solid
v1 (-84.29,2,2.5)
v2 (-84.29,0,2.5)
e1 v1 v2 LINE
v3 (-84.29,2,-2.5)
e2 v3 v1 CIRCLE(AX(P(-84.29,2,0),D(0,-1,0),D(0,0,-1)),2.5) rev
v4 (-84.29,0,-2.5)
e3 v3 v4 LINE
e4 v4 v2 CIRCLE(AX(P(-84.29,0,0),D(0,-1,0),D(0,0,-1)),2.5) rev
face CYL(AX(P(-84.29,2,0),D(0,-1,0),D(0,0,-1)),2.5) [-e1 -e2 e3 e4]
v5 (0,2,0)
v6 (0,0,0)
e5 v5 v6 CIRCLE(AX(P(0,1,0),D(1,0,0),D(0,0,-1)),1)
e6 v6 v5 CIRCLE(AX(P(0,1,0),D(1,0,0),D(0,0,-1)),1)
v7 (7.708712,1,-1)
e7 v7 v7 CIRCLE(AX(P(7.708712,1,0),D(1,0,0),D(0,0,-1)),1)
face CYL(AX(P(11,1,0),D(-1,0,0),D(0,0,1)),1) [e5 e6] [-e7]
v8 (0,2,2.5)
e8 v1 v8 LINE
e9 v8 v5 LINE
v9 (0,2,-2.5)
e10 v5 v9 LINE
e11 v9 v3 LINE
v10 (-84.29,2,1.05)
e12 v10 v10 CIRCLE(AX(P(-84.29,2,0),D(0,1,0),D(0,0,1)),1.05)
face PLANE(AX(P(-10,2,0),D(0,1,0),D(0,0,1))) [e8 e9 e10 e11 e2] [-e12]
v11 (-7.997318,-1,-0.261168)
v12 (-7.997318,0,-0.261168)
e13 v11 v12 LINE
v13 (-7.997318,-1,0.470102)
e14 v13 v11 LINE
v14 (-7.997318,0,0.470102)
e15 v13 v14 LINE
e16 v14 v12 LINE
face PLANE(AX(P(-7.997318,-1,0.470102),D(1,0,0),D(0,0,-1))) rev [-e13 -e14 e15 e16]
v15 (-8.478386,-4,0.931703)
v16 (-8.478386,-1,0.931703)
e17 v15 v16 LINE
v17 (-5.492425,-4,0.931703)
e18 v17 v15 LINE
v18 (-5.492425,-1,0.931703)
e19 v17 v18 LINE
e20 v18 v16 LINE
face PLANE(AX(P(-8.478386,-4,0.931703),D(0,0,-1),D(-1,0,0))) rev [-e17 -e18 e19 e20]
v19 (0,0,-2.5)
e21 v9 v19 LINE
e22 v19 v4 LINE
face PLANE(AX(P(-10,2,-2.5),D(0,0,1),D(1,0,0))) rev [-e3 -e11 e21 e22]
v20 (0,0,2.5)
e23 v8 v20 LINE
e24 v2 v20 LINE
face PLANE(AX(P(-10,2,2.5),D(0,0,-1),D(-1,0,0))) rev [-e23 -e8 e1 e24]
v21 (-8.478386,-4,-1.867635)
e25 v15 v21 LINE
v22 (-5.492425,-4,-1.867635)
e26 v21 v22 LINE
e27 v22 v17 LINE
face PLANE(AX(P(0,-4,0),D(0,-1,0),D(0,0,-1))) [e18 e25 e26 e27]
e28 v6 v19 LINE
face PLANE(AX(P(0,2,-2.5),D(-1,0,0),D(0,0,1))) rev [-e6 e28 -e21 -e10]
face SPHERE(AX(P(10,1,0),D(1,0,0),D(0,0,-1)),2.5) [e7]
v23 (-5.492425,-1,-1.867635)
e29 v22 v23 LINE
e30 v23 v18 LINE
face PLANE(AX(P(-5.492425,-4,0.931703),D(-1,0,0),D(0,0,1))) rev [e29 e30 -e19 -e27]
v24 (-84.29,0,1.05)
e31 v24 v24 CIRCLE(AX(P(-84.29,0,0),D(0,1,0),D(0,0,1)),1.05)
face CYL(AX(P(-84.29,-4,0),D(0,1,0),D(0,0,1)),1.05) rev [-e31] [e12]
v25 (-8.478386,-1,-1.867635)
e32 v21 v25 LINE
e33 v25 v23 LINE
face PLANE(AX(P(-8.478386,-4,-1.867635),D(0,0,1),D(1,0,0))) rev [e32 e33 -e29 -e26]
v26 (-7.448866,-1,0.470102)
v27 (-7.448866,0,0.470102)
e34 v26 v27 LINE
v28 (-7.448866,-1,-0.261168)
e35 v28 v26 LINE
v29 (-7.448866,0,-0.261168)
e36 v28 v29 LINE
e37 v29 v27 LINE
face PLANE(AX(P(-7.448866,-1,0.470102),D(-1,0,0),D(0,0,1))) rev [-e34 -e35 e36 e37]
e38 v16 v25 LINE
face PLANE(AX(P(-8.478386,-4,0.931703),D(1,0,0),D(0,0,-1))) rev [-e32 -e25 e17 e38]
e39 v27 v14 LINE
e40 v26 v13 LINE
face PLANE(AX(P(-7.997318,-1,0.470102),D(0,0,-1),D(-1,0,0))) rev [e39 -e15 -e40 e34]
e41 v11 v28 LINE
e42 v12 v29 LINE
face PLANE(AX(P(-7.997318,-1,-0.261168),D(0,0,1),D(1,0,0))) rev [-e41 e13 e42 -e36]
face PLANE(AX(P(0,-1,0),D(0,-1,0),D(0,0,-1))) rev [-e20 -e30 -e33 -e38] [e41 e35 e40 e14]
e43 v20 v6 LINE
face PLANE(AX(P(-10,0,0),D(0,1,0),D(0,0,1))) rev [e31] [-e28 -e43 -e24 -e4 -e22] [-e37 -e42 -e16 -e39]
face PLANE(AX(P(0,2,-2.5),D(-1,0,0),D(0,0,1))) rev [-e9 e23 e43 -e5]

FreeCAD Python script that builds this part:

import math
import FreeCAD as App
import Part
import Sketcher

V = App.Vector

doc = App.newDocument("Part")
params = doc.addObject("Spreadsheet::Sheet", "Params")
for row, (alias, value) in enumerate([
    ("sketch1_diameter", "2 mm"),
    ("sketch1_radius", "2.5 mm"),
    ("sketch1_width", "10 mm"),
    ("pad1_length", "2 mm"),
    ("sketch2_diameter", "2 mm"),
    ("pad2_length", "11 mm"),
    ("pad3_length", "1 mm"),
    ("pad4_length", "3 mm"),
    ("sketch5_width", "2 mm"),
    ("sketch5_height", "5 mm"),
    ("pad5_length", "86.79 mm"),
    ("sketch6_radius", "2.5 mm"),
    ("sketch7_diameter", "2.1 mm"),
    ("sketch8_radius", "2.5 mm"),
    ("sketch9_radius", "2.5 mm"),
    ("revolution_angle", "360 deg"),
], start=1):
    params.set(f"A{row}", alias)
    params.set(f"B{row}", "=" + value)
    params.setAlias(f"B{row}", alias)

body = doc.addObject("PartDesign::Body", "Body")

sketch1 = body.newObject("Sketcher::SketchObject", "Sketch")
sketch1.AttachmentSupport = (doc.getObject("XZ_Plane"), [""])
sketch1.MapMode = "FlatFace"
sketch1.addGeometry([
    Part.LineSegment(V(0, -2.5, 0), V(-10, -2.5, 0)),
    Part.ArcOfCircle(Part.Circle(V(-10, 0, 0), V(0, 0, 1), 2.5), math.radians(90), math.radians(270)),
    Part.LineSegment(V(-10, 2.5, 0), V(0, 2.5, 0)),
    Part.LineSegment(V(0, 2.5, 0), V(0, -2.5, 0)),
    Part.Circle(V(-10, 0, 0), V(0, 0, 1), 1),
], False)
sketch1.addConstraint([
    Sketcher.Constraint("Tangent", 0, 2, 1, 2),
    Sketcher.Constraint("Tangent", 1, 1, 2, 1),
    Sketcher.Constraint("Coincident", 2, 2, 3, 1),
    Sketcher.Constraint("Coincident", 3, 2, 0, 1),
    Sketcher.Constraint("Horizontal", 0),
    Sketcher.Constraint("Horizontal", 2),
    Sketcher.Constraint("Vertical", 3),
    Sketcher.Constraint("Coincident", 4, 3, 1, 3),
    Sketcher.Constraint("Symmetric", 2, 2, 3, 2, -1, 1),
    Sketcher.Constraint("Diameter", 4, 2.0),
    Sketcher.Constraint("Radius", 1, 2.5),
    Sketcher.Constraint("DistanceX", 0, 2, 0, 1, 10.0),
])
sketch1.setExpression("Constraints[9]", "Params.sketch1_diameter")
sketch1.setExpression("Constraints[10]", "Params.sketch1_radius")
sketch1.setExpression("Constraints[11]", "Params.sketch1_width")
pad1 = body.newObject("PartDesign::Pad", "Pad")
pad1.Profile = sketch1
pad1.setExpression("Length", "Params.pad1_length")
pad1.Reversed = True

sketch2 = body.newObject("Sketcher::SketchObject", "Sketch001")
sketch2.AttachmentSupport = (doc.getObject("YZ_Plane"), [""])
sketch2.MapMode = "FlatFace"
sketch2.addGeometry(Part.Circle(V(1, 0, 0), V(0, 0, 1), 1), False)
sketch2.addConstraint([
    Sketcher.Constraint("PointOnObject", 0, 3, -1),
    Sketcher.Constraint("Diameter", 0, 2.0),
    Sketcher.Constraint("DistanceX", -1, 1, 0, 3, 1.0),
])
sketch2.setExpression("Constraints[1]", "Params.sketch2_diameter")
pad2 = body.newObject("PartDesign::Pad", "Pad001")
pad2.Profile = sketch2
pad2.setExpression("Length", "Params.pad2_length")

sketch3 = body.newObject("Sketcher::SketchObject", "Sketch002")
sketch3.AttachmentSupport = (doc.getObject("XZ_Plane"), [""])
sketch3.MapMode = "FlatFace"
sketch3.addGeometry([
    Part.LineSegment(V(-8, 0.5, 0), V(-8, -0.3, 0)),
    Part.LineSegment(V(-8, -0.3, 0), V(-7.4, -0.3, 0)),
    Part.LineSegment(V(-7.4, -0.3, 0), V(-7.4, 0.5, 0)),
    Part.LineSegment(V(-7.4, 0.5, 0), V(-8, 0.5, 0)),
], False)
sketch3.addConstraint([
    Sketcher.Constraint("Coincident", 0, 2, 1, 1),
    Sketcher.Constraint("Coincident", 1, 2, 2, 1),
    Sketcher.Constraint("Coincident", 2, 2, 3, 1),
    Sketcher.Constraint("Coincident", 3, 2, 0, 1),
    Sketcher.Constraint("Vertical", 0),
    Sketcher.Constraint("Horizontal", 1),
    Sketcher.Constraint("Vertical", 2),
    Sketcher.Constraint("Horizontal", 3),
    Sketcher.Constraint("DistanceY", 0, 2, 0, 1, 0.73127),
    Sketcher.Constraint("DistanceX", 1, 1, 1, 2, 0.548452),
    Sketcher.Constraint("DistanceX", 0, 2, -1, 1, 7.997318),
    Sketcher.Constraint("DistanceY", 0, 2, -1, 1, 0.261168),
])
pad3 = body.newObject("PartDesign::Pad", "Pad002")
pad3.Profile = sketch3
pad3.setExpression("Length", "Params.pad3_length")

sketch4 = body.newObject("Sketcher::SketchObject", "Sketch003")
sketch4.AttachmentSupport = (doc.getObject("XZ_Plane"), [""])
sketch4.MapMode = "FlatFace"
sketch4.AttachmentOffset = App.Placement(V(0, 0, 1), App.Rotation())
sketch4.addGeometry([
    Part.LineSegment(V(-8.5, 0.9, 0), V(-8.5, -1.9, 0)),
    Part.LineSegment(V(-8.5, -1.9, 0), V(-5.5, -1.9, 0)),
    Part.LineSegment(V(-5.5, -1.9, 0), V(-5.5, 0.9, 0)),
    Part.LineSegment(V(-5.5, 0.9, 0), V(-8.5, 0.9, 0)),
], False)
sketch4.addConstraint([
    Sketcher.Constraint("Coincident", 0, 2, 1, 1),
    Sketcher.Constraint("Coincident", 1, 2, 2, 1),
    Sketcher.Constraint("Coincident", 2, 2, 3, 1),
    Sketcher.Constraint("Coincident", 3, 2, 0, 1),
    Sketcher.Constraint("Vertical", 0),
    Sketcher.Constraint("Horizontal", 1),
    Sketcher.Constraint("Vertical", 2),
    Sketcher.Constraint("Horizontal", 3),
    Sketcher.Constraint("DistanceX", 1, 1, 1, 2, 2.985961),
    Sketcher.Constraint("DistanceY", 0, 2, 0, 1, 2.799338),
    Sketcher.Constraint("DistanceX", 0, 2, -1, 1, 8.478386),
    Sketcher.Constraint("DistanceY", 0, 2, -1, 1, 1.867635),
])
pad4 = body.newObject("PartDesign::Pad", "Pad003")
pad4.Profile = sketch4
pad4.setExpression("Length", "Params.pad4_length")

sketch5 = body.newObject("Sketcher::SketchObject", "Sketch004")
sketch5.AttachmentSupport = (doc.getObject("YZ_Plane"), [""])
sketch5.MapMode = "FlatFace"
sketch5.addGeometry([
    Part.LineSegment(V(2, 2.5, 0), V(0, 2.5, 0)),
    Part.LineSegment(V(0, 2.5, 0), V(0, -2.5, 0)),
    Part.LineSegment(V(0, -2.5, 0), V(2, -2.5, 0)),
    Part.LineSegment(V(2, -2.5, 0), V(2, 2.5, 0)),
], False)
sketch5.addConstraint([
    Sketcher.Constraint("Coincident", 0, 2, 1, 1),
    Sketcher.Constraint("Coincident", 1, 2, 2, 1),
    Sketcher.Constraint("Coincident", 2, 2, 3, 1),
    Sketcher.Constraint("Coincident", 3, 2, 0, 1),
    Sketcher.Constraint("Horizontal", 0),
    Sketcher.Constraint("Vertical", 1),
    Sketcher.Constraint("Horizontal", 2),
    Sketcher.Constraint("Vertical", 3),
    Sketcher.Constraint("Symmetric", 0, 2, 1, 2, -1, 1),
    Sketcher.Constraint("DistanceX", 0, 2, 0, 1, 2.0),
    Sketcher.Constraint("DistanceY", 1, 2, 1, 1, 5.0),
])
sketch5.setExpression("Constraints[9]", "Params.sketch5_width")
sketch5.setExpression("Constraints[10]", "Params.sketch5_height")
pad5 = body.newObject("PartDesign::Pad", "Pad004")
pad5.Profile = sketch5
pad5.setExpression("Length", "Params.pad5_length")
pad5.Reversed = True

sketch6 = body.newObject("Sketcher::SketchObject", "Sketch005")
sketch6.AttachmentSupport = (doc.getObject("XZ_Plane"), [""])
sketch6.MapMode = "FlatFace"
sketch6.addGeometry([
    Part.ArcOfCircle(Part.Circle(V(-84.3, 0, 0), V(0, 0, 1), 2.5), math.radians(180), math.radians(270)),
    Part.LineSegment(V(-86.8, 0, 0), V(-86.8, -2.5, 0)),
    Part.LineSegment(V(-86.8, -2.5, 0), V(-84.3, -2.5, 0)),
], False)
sketch6.addConstraint([
    Sketcher.Constraint("Tangent", 0, 1, 1, 1),
    Sketcher.Constraint("Coincident", 1, 2, 2, 1),
    Sketcher.Constraint("Tangent", 2, 2, 0, 2),
    Sketcher.Constraint("Vertical", 1),
    Sketcher.Constraint("Horizontal", 2),
    Sketcher.Constraint("PointOnObject", 0, 3, -1),
    Sketcher.Constraint("Radius", 0, 2.5),
    Sketcher.Constraint("DistanceX", 0, 3, -1, 1, 84.29),
])
sketch6.setExpression("Constraints[6]", "Params.sketch6_radius")
pocket1 = body.newObject("PartDesign::Pocket", "Pocket")
pocket1.Profile = sketch6
pocket1.Type = "ThroughAll"
pocket1.Midplane = True

sketch7 = body.newObject("Sketcher::SketchObject", "Sketch006")
sketch7.AttachmentSupport = (doc.getObject("XZ_Plane"), [""])
sketch7.MapMode = "FlatFace"
sketch7.AttachmentOffset = App.Placement(V(0, 0, -2), App.Rotation())
sketch7.addGeometry(Part.Circle(V(-84.3, 0, 0), V(0, 0, 1), 1.1), False)
sketch7.addConstraint([
    Sketcher.Constraint("PointOnObject", 0, 3, -1),
    Sketcher.Constraint("Diameter", 0, 2.1),
    Sketcher.Constraint("DistanceX", 0, 3, -1, 1, 84.29),
])
sketch7.setExpression("Constraints[1]", "Params.sketch7_diameter")
pocket2 = body.newObject("PartDesign::Pocket", "Pocket001")
pocket2.Profile = sketch7
pocket2.Type = "ThroughAll"
pocket2.Midplane = True

sketch8 = body.newObject("Sketcher::SketchObject", "Sketch007")
sketch8.AttachmentSupport = (doc.getObject("XZ_Plane"), [""])
sketch8.MapMode = "FlatFace"
sketch8.addGeometry([
    Part.LineSegment(V(-86.8, 2.5, 0), V(-86.8, 0, 0)),
    Part.ArcOfCircle(Part.Circle(V(-84.3, 0, 0), V(0, 0, 1), 2.5), math.radians(90), math.radians(180)),
    Part.LineSegment(V(-84.3, 2.5, 0), V(-86.8, 2.5, 0)),
], False)
sketch8.addConstraint([
    Sketcher.Constraint("Tangent", 0, 2, 1, 2),
    Sketcher.Constraint("Tangent", 1, 1, 2, 1),
    Sketcher.Constraint("Coincident", 2, 2, 0, 1),
    Sketcher.Constraint("Vertical", 0),
    Sketcher.Constraint("Horizontal", 2),
    Sketcher.Constraint("PointOnObject", 1, 3, -1),
    Sketcher.Constraint("Radius", 1, 2.5),
    Sketcher.Constraint("DistanceX", 1, 3, -1, 1, 84.29),
])
sketch8.setExpression("Constraints[6]", "Params.sketch8_radius")
pocket3 = body.newObject("PartDesign::Pocket", "Pocket002")
pocket3.Profile = sketch8
pocket3.Type = "ThroughAll"
pocket3.Midplane = True

sketch9 = body.newObject("Sketcher::SketchObject", "Sketch008")
sketch9.AttachmentSupport = (doc.getObject("XZ_Plane"), [""])
sketch9.MapMode = "FlatFace"
sketch9.AttachmentOffset = App.Placement(V(0, 0, -1), App.Rotation())
sketch9.addGeometry([
    Part.ArcOfCircle(Part.Circle(V(10, 0, 0), V(0, 0, 1), 2.5), math.radians(0), math.radians(180)),
    Part.LineSegment(V(7.5, 0, 0), V(12.5, 0, 0)),
], False)
sketch9.addConstraint([
    Sketcher.Constraint("Coincident", 0, 1, 1, 2),
    Sketcher.Constraint("Coincident", 1, 1, 0, 2),
    Sketcher.Constraint("Horizontal", 1),
    Sketcher.Constraint("PointOnObject", 0, 3, -1),
    Sketcher.Constraint("PointOnObject", 0, 1, -1),
    Sketcher.Constraint("Radius", 0, 2.5),
    Sketcher.Constraint("DistanceX", -1, 1, 0, 3, 10.0),
])
sketch9.setExpression("Constraints[5]", "Params.sketch9_radius")
revolution = body.newObject("PartDesign::Revolution", "Revolution")
revolution.Profile = sketch9
revolution.ReferenceAxis = (sketch9, ["H_Axis"])
revolution.setExpression("Angle", "Params.revolution_angle")

doc.recompute()
